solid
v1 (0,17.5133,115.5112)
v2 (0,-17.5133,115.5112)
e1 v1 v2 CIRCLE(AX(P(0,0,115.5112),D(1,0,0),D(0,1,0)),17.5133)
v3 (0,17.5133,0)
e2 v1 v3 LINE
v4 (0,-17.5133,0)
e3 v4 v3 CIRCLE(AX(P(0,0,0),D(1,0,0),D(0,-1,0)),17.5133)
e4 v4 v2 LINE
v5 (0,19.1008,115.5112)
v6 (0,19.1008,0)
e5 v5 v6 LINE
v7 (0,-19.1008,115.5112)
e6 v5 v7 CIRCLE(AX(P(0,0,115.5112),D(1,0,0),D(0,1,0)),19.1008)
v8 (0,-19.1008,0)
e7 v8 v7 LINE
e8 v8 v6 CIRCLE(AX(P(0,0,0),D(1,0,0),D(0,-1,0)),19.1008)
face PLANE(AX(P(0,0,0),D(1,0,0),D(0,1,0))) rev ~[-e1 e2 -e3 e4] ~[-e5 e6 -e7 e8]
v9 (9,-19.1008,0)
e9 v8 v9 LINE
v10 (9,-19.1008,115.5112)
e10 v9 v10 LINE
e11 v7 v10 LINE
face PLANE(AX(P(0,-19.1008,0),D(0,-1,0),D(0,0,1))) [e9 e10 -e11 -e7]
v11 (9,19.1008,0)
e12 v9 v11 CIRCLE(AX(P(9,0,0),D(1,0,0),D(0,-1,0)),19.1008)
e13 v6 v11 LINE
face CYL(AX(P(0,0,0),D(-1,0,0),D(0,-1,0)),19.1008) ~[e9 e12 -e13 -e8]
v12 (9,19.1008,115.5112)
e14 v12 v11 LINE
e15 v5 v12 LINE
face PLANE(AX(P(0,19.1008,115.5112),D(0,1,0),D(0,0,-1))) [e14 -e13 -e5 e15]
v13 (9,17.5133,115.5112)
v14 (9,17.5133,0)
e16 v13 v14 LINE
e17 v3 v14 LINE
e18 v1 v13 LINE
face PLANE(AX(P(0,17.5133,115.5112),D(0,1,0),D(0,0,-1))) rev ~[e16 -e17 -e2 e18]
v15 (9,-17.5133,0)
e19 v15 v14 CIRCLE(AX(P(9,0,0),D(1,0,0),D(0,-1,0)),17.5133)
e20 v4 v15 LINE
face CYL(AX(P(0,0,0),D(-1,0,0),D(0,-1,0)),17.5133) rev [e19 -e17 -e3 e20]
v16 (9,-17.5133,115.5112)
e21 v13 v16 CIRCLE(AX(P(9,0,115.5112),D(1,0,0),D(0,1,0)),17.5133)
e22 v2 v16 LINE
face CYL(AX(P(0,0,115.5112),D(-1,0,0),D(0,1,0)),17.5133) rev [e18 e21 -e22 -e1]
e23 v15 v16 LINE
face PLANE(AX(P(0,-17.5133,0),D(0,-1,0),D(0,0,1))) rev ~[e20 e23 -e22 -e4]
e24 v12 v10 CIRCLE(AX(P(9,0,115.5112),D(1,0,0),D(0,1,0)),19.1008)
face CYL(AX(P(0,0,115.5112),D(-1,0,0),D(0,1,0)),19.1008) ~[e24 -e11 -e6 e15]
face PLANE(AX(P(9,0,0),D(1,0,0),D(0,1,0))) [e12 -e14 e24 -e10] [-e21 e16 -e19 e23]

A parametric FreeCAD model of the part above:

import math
import FreeCAD as App
import Part
import Sketcher
from FreeCAD import Vector
Q = App.Units.Quantity

doc = App.newDocument("Part")
body = doc.addObject("PartDesign::Body", "Body")

# Sketch on YZ plane
sketch1 = body.newObject("Sketcher::SketchObject", "Sketch")
sketch1.AttachmentSupport = (doc.getObject("YZ_Plane"), [""])
sketch1.MapMode = "FlatFace"
sketch1.addGeometry([
    Part.LineSegment(Vector(-19, 116, 0), Vector(-19, 0, 0)),  # 0
    Part.ArcOfCircle(Part.Circle(Vector(0, 0, 0), Vector(0, 0, 1), 19), math.radians(180), math.radians(360)),  # 1
    Part.LineSegment(Vector(19, 0, 0), Vector(19, 116, 0)),  # 2
    Part.ArcOfCircle(Part.Circle(Vector(0, 116, 0), Vector(0, 0, 1), 19), math.radians(0), math.radians(180)),  # 3
    Part.ArcOfCircle(Part.Circle(Vector(0, 0, 0), Vector(0, 0, 1), 18), math.radians(180), math.radians(360)),  # 4
    Part.LineSegment(Vector(-18, 0, 0), Vector(-18, 116, 0)),  # 5
    Part.ArcOfCircle(Part.Circle(Vector(0, 116, 0), Vector(0, 0, 1), 18), math.radians(0), math.radians(180)),  # 6
    Part.LineSegment(Vector(18, 116, 0), Vector(18, 0, 0)),  # 7
], False)
sketch1.addConstraint([
    Sketcher.Constraint("Tangent", 0, 2, 1, 1),
    Sketcher.Constraint("Tangent", 1, 2, 2, 1),
    Sketcher.Constraint("Tangent", 2, 2, 3, 1),
    Sketcher.Constraint("Tangent", 3, 2, 0, 1),
    Sketcher.Constraint("Tangent", 4, 1, 5, 1),
    Sketcher.Constraint("Tangent", 5, 2, 6, 2),
    Sketcher.Constraint("Tangent", 6, 1, 7, 1),
    Sketcher.Constraint("Tangent", 7, 2, 4, 2),
    Sketcher.Constraint("Vertical", 0),
    Sketcher.Constraint("Vertical", 2),
    Sketcher.Constraint("Vertical", 5),
    Sketcher.Constraint("Vertical", 7),
    Sketcher.Constraint("Coincident", 1, 3, -1, 1),
    Sketcher.Constraint("Coincident", 4, 3, -1, 1),
    Sketcher.Constraint("Horizontal", 6, 3, 2, 2),
    Sketcher.Constraint("Radius", 1, Q("0.752 in")),
    Sketcher.Constraint("DistanceX", 0, 2, 4, 1, Q("0.0625 in")),
    Sketcher.Constraint("DistanceY", 0, 2, 0, 1, Q("115.5112 mm")),
])
pad1 = body.newObject("PartDesign::Pad", "Pad")
pad1.Profile = sketch1
pad1.Length = 9

doc.recompute()
